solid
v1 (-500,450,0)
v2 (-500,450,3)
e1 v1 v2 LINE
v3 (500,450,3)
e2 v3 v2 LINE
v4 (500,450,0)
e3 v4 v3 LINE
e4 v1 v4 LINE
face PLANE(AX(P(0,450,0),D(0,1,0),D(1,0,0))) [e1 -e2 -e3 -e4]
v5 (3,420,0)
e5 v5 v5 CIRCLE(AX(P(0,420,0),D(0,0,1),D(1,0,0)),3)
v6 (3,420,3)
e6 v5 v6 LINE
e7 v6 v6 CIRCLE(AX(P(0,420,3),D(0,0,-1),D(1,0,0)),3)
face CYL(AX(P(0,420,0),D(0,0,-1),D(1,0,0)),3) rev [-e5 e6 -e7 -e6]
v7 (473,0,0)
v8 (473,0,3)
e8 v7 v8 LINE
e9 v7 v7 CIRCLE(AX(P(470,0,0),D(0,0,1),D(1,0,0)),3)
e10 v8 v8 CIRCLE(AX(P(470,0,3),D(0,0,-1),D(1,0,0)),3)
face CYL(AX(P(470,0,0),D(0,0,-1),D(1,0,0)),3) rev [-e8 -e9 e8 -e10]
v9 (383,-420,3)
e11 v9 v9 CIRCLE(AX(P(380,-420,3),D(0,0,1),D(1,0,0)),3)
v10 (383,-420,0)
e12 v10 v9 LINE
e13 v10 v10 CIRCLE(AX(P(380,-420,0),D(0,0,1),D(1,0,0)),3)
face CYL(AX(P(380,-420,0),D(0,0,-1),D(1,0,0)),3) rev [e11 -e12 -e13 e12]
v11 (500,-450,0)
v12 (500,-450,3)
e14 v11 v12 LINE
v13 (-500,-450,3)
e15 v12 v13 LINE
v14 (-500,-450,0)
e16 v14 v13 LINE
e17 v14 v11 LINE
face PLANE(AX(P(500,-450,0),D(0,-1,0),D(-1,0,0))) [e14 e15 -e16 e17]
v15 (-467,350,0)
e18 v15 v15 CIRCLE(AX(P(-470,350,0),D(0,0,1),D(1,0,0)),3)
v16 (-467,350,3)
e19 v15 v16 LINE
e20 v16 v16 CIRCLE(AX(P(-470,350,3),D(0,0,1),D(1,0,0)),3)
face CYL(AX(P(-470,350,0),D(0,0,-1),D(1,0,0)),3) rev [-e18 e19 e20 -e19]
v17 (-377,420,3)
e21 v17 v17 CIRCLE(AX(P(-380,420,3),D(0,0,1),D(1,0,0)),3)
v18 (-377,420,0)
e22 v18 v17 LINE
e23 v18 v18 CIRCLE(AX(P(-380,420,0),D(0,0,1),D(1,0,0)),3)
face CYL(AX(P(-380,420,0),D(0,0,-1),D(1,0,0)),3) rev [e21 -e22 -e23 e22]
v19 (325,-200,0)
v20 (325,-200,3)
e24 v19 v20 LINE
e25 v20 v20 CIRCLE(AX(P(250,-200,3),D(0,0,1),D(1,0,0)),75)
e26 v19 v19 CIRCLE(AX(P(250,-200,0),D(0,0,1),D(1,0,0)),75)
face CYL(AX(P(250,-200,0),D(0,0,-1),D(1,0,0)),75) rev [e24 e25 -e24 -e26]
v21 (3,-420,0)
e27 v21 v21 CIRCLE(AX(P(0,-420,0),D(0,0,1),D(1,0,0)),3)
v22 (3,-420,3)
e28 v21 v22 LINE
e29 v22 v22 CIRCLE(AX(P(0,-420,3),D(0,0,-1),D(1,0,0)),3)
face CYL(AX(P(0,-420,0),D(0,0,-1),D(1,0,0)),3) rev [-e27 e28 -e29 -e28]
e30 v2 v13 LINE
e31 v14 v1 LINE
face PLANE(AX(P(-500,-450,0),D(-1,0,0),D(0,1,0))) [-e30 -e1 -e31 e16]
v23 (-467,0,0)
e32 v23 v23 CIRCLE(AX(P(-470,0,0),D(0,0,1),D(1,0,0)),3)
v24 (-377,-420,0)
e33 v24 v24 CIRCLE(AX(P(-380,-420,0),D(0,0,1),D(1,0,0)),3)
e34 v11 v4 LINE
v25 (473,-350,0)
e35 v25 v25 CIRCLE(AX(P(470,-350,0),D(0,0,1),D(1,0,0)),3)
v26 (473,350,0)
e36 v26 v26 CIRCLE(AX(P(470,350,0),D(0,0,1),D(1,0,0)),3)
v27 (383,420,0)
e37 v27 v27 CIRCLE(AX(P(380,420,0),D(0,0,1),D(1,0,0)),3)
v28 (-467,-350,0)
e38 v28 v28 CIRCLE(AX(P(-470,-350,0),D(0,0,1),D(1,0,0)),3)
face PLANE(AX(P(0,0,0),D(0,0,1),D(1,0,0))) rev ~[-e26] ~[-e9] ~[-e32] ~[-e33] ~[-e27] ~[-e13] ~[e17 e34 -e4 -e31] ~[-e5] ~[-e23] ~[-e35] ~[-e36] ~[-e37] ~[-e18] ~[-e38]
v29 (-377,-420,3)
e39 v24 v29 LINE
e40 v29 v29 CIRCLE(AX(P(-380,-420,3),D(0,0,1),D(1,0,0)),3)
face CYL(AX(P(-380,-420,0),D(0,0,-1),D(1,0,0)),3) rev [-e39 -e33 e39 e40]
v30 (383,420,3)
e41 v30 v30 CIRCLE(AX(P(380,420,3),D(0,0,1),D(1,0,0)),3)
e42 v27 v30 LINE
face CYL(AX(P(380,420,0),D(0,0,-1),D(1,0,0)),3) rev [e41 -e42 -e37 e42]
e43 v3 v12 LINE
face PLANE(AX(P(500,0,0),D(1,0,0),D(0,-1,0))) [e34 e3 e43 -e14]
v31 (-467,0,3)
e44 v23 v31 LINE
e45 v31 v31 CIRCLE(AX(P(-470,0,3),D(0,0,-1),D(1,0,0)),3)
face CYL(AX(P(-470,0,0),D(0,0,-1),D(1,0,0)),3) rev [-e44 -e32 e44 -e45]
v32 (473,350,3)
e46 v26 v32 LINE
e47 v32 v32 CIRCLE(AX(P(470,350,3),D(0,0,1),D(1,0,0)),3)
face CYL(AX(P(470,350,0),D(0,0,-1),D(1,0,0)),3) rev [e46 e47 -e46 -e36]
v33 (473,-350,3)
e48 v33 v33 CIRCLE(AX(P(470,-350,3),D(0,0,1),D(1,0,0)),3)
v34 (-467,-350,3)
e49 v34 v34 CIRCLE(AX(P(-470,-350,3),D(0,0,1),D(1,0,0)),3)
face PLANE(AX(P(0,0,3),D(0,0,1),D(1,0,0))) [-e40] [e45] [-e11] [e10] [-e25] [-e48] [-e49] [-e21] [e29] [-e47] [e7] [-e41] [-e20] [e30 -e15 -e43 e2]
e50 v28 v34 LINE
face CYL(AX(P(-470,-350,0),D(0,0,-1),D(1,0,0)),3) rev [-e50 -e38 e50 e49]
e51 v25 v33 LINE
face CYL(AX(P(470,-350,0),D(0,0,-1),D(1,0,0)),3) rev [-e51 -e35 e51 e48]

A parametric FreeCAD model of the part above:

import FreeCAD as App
import Part
import Sketcher

V = App.Vector


def add_polygon(sketch, points):
    """Adds a closed chain of lines whose ends are joined by coincident constraints."""
    first, n = sketch.GeometryCount, len(points)
    for a, b in zip(points, points[1:] + points[:1]):
        sketch.addGeometry(Part.LineSegment(App.Vector(*a, 0), App.Vector(*b, 0)), False)
    for i in range(n):
        sketch.addConstraint(Sketcher.Constraint("Coincident", first + i, 2, first + (i + 1) % n, 1))

doc = App.newDocument("Part")
body = doc.addObject("PartDesign::Body", "Body")

# Sketch on XY plane
sketch1 = body.newObject("Sketcher::SketchObject", "Sketch")
sketch1.AttachmentSupport = (doc.getObject("XY_Plane"), [""])
sketch1.MapMode = "FlatFace"
add_polygon(sketch1, [(500, -450), (500, 450), (-500, 450), (-500, -450)])  # lines 0-3
sketch1.addGeometry(Part.Circle(V(0, -420, 0), V(0, 0, 1), 3), False)  # 4
sketch1.addGeometry(Part.Circle(V(470, 0, 0), V(0, 0, 1), 3), False)  # 5
sketch1.addGeometry(Part.Circle(V(380, -420, 0), V(0, 0, 1), 3), False)  # 6
sketch1.addGeometry(Part.Circle(V(470, -350, 0), V(0, 0, 1), 3), False)  # 7
sketch1.addGeometry(Part.Circle(V(250, -200, 0), V(0, 0, 1), 75), False)  # 8
sketch1.addGeometry(Part.Circle(V(-470, 0, 0), V(0, 0, 1), 3), False)  # 9
sketch1.addGeometry(Part.Circle(V(-380, -420, 0), V(0, 0, 1), 3), False)  # 10
sketch1.addGeometry(Part.Circle(V(-470, -350, 0), V(0, 0, 1), 3), False)  # 11
sketch1.addGeometry(Part.Circle(V(470, 350, 0), V(0, 0, 1), 3), False)  # 12
sketch1.addGeometry(Part.Circle(V(380, 420, 0), V(0, 0, 1), 3), False)  # 13
sketch1.addGeometry(Part.Circle(V(0, 420, 0), V(0, 0, 1), 3), False)  # 14
sketch1.addGeometry(Part.Circle(V(-380, 420, 0), V(0, 0, 1), 3), False)  # 15
sketch1.addGeometry(Part.Circle(V(-470, 350, 0), V(0, 0, 1), 3), False)  # 16
sketch1.addConstraint([
    Sketcher.Constraint("Vertical", 0),
    Sketcher.Constraint("Horizontal", 1),
    Sketcher.Constraint("Vertical", 2),
    Sketcher.Constraint("Horizontal", 3),
    Sketcher.Constraint("Equal", 4, 5),
    Sketcher.Constraint("Equal", 5, 6),
    Sketcher.Constraint("Equal", 6, 7),
    Sketcher.Constraint("Equal", 7, 9),
    Sketcher.Constraint("Equal", 9, 10),
    Sketcher.Constraint("Equal", 10, 11),
    Sketcher.Constraint("Equal", 11, 12),
    Sketcher.Constraint("Equal", 12, 13),
    Sketcher.Constraint("Equal", 13, 14),
    Sketcher.Constraint("Equal", 14, 15),
    Sketcher.Constraint("Equal", 15, 16),
    Sketcher.Constraint("Symmetric", 5, 3, 9, 3, -1, 1),
    Sketcher.Constraint("Symmetric", 11, 3, 12, 3, -1, 1),
    Sketcher.Constraint("Symmetric", 10, 3, 13, 3, -1, 1),
    Sketcher.Constraint("Symmetric", 4, 3, 14, 3, -1, 1),
    Sketcher.Constraint("Symmetric", 6, 3, 15, 3, -1, 1),
    Sketcher.Constraint("Symmetric", 7, 3, 16, 3, -1, 1),
    Sketcher.Constraint("Symmetric", 0, 2, 2, 2, -1, 1),
    Sketcher.Constraint("Symmetric", 6, 3, 10, 3, -2),
    Sketcher.Constraint("Symmetric", 7, 3, 11, 3, -2),
    Sketcher.Constraint("PointOnObject", 4, 3, -2),
    Sketcher.Constraint("PointOnObject", 5, 3, -1),
    Sketcher.Constraint("Horizontal", 4, 3, 6, 3),
    Sketcher.Constraint("Vertical", 5, 3, 7, 3),
    Sketcher.Constraint("Diameter", 4, 6.0),
    Sketcher.Constraint("Diameter", 8, 150.0),
    Sketcher.Constraint("DistanceX", 1, 2, 1, 1, 1000.0),
    Sketcher.Constraint("DistanceY", 0, 1, 0, 2, 900.0),
    Sketcher.Constraint("DistanceX", -1, 1, 6, 3, 380.0),
    Sketcher.Constraint("DistanceY", 7, 3, -1, 1, 350.0),
    Sketcher.Constraint("DistanceX", -1, 1, 8, 3, 250.0),
    Sketcher.Constraint("DistanceY", 7, 3, 8, 3, 150.0),
    Sketcher.Constraint("DistanceY", 4, 3, -1, 1, 420.0),
    Sketcher.Constraint("DistanceX", -1, 1, 5, 3, 470.0),
])
pad1 = body.newObject("PartDesign::Pad", "Pad")
pad1.Profile = sketch1
pad1.Length = 3

doc.recompute()
